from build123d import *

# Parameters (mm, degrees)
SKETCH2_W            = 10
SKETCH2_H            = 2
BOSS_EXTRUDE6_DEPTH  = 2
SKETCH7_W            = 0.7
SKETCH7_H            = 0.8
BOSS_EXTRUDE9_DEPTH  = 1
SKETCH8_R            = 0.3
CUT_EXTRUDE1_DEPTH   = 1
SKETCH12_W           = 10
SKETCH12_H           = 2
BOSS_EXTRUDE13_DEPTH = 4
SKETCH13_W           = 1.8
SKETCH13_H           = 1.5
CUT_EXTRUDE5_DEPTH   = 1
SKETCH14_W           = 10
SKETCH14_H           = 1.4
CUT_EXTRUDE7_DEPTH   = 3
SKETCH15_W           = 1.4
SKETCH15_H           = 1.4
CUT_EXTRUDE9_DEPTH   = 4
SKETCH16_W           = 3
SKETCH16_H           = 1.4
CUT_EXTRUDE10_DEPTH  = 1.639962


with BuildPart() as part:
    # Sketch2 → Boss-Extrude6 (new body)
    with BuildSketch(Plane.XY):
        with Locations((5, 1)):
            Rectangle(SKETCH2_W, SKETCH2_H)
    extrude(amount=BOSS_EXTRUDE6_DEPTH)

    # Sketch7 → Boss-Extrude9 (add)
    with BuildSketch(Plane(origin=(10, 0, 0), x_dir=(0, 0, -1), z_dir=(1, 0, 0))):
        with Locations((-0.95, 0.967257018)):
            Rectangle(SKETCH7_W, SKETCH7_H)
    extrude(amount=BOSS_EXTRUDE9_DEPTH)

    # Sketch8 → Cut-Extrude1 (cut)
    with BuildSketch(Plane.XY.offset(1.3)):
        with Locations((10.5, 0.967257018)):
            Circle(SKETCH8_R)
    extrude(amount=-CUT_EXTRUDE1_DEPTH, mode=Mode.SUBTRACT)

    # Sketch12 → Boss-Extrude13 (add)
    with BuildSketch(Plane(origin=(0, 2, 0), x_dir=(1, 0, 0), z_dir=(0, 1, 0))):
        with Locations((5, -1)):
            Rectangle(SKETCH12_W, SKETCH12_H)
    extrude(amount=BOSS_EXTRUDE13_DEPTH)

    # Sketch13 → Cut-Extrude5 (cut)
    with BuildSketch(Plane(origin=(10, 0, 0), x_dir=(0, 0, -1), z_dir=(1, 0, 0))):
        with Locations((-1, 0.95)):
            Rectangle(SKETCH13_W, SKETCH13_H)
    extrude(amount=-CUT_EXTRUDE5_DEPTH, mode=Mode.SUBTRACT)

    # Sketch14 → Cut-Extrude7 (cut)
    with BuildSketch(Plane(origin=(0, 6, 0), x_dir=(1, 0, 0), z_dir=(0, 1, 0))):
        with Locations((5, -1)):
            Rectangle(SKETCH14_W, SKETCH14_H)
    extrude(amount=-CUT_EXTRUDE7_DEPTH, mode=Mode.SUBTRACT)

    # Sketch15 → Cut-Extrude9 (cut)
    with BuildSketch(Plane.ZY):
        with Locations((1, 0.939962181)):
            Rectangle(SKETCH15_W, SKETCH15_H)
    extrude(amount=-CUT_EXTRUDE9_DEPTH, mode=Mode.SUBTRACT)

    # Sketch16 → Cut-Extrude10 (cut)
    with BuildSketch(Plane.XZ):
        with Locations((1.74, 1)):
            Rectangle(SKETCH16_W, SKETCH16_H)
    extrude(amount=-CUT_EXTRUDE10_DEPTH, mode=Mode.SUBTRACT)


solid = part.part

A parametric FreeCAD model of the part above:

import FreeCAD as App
import Part
import Sketcher

V = App.Vector


def add_polygon(sketch, points):
    """Adds a closed chain of lines whose ends are joined by coincident constraints."""
    first, n = sketch.GeometryCount, len(points)
    for a, b in zip(points, points[1:] + points[:1]):
        sketch.addGeometry(Part.LineSegment(App.Vector(*a, 0), App.Vector(*b, 0)), False)
    for i in range(n):
        sketch.addConstraint(Sketcher.Constraint("Coincident", first + i, 2, first + (i + 1) % n, 1))

doc = App.newDocument("Part")
params = doc.addObject("Spreadsheet::Sheet", "Params")
for row, (alias, value) in enumerate([
    ("sketch1_width", "10 mm"),
    ("sketch1_height", "2 mm"),
    ("pad1_length", "2 mm"),
    ("sketch2_width", "0.8 mm"),
    ("sketch2_height", "0.7 mm"),
    ("pad2_length", "1 mm"),
    ("sketch3_diameter", "0.6 mm"),
    ("pocket1_length", "1 mm"),
    ("sketch4_width", "10 mm"),
    ("sketch4_height", "2 mm"),
    ("pad3_length", "4 mm"),
    ("sketch5_width", "1.5 mm"),
    ("sketch5_height", "1.8 mm"),
    ("pocket2_length", "1 mm"),
    ("sketch6_width", "10 mm"),
    ("sketch6_height", "1.4 mm"),
    ("pocket3_length", "3 mm"),
    ("sketch7_width", "1.4 mm"),
    ("pocket4_length", "4 mm"),
    ("sketch8_width", "3 mm"),
    ("sketch8_height", "1.4 mm"),
    ("pocket5_length", "1.639962 mm"),
], start=1):
    params.set(f"A{row}", alias)
    params.set(f"B{row}", "=" + value)
    params.setAlias(f"B{row}", alias)

body = doc.addObject("PartDesign::Body", "Body")
body.AllowCompound = True

sketch1 = doc.addObject("Sketcher::SketchObject", "Sketch")
body.addObject(sketch1)
sketch1.AttachmentSupport = (doc.XY_Plane, [""])
sketch1.MapMode = "FlatFace"
add_polygon(sketch1, [(0, 2), (0, 0), (10, 0), (10, 2)])
sketch1.addConstraint([
    Sketcher.Constraint("Vertical", 0),
    Sketcher.Constraint("Horizontal", 1),
    Sketcher.Constraint("Vertical", 2),
    Sketcher.Constraint("Horizontal", 3),
    Sketcher.Constraint("Coincident", 0, 2, -1, 1),
    Sketcher.Constraint("DistanceX", 1, 1, 1, 2, 10.0),
    Sketcher.Constraint("DistanceY", 0, 2, 0, 1, 2.0),
])
sketch1.setExpression("Constraints[9]", "Params.sketch1_width")
sketch1.setExpression("Constraints[10]", "Params.sketch1_height")
pad1 = doc.addObject("PartDesign::Pad", "Pad")
body.addObject(pad1)
pad1.Profile = sketch1
pad1.setExpression("Length", "Params.pad1_length")

sketch2 = doc.addObject("Sketcher::SketchObject", "Sketch001")
body.addObject(sketch2)
sketch2.AttachmentSupport = (doc.YZ_Plane, [""])
sketch2.MapMode = "FlatFace"
sketch2.AttachmentOffset = App.Placement(V(0, 0, 10), App.Rotation())
add_polygon(sketch2, [(1.4, 1.3), (0.6, 1.3), (0.6, 0.6), (1.4, 0.6)])
sketch2.addConstraint([
    Sketcher.Constraint("Horizontal", 0),
    Sketcher.Constraint("Vertical", 1),
    Sketcher.Constraint("Horizontal", 2),
    Sketcher.Constraint("Vertical", 3),
    Sketcher.Constraint("DistanceX", 0, 2, 0, 1, 0.8),
    Sketcher.Constraint("DistanceY", 1, 2, 1, 1, 0.7),
    Sketcher.Constraint("DistanceY", -1, 1, 0, 2, 1.3),
    Sketcher.Constraint("DistanceX", -1, 1, 0, 2, 0.567257),
])
sketch2.setExpression("Constraints[8]", "Params.sketch2_width")
sketch2.setExpression("Constraints[9]", "Params.sketch2_height")
pad2 = doc.addObject("PartDesign::Pad", "Pad001")
body.addObject(pad2)
pad2.Profile = sketch2
pad2.setExpression("Length", "Params.pad2_length")

sketch3 = doc.addObject("Sketcher::SketchObject", "Sketch002")
body.addObject(sketch3)
sketch3.AttachmentSupport = (doc.XY_Plane, [""])
sketch3.MapMode = "FlatFace"
sketch3.AttachmentOffset = App.Placement(V(0, 0, 1.3), App.Rotation())
sketch3.addGeometry(Part.Circle(V(10.5, 0.97, 0), V(0, 0, 1), 0.3), False)
sketch3.addConstraint([
    Sketcher.Constraint("Diameter", 0, 0.6),
    Sketcher.Constraint("DistanceX", -1, 1, 0, 3, 10.5),
    Sketcher.Constraint("DistanceY", -1, 1, 0, 3, 0.967257),
])
sketch3.setExpression("Constraints[0]", "Params.sketch3_diameter")
pocket1 = doc.addObject("PartDesign::Pocket", "Pocket")
body.addObject(pocket1)
pocket1.Profile = sketch3
pocket1.setExpression("Length", "Params.pocket1_length")

sketch4 = doc.addObject("Sketcher::SketchObject", "Sketch003")
body.addObject(sketch4)
sketch4.AttachmentSupport = (doc.XZ_Plane, [""])
sketch4.MapMode = "FlatFace"
sketch4.AttachmentOffset = App.Placement(V(0, 0, -2), App.Rotation())
add_polygon(sketch4, [(0, 0), (0, 2), (10, 2), (10, 0)])
sketch4.addConstraint([
    Sketcher.Constraint("Vertical", 0),
    Sketcher.Constraint("Horizontal", 1),
    Sketcher.Constraint("Vertical", 2),
    Sketcher.Constraint("Horizontal", 3),
    Sketcher.Constraint("Coincident", 3, 2, -1, 1),
    Sketcher.Constraint("DistanceX", 1, 1, 1, 2, 10.0),
    Sketcher.Constraint("DistanceY", 0, 1, 0, 2, 2.0),
])
sketch4.setExpression("Constraints[9]", "Params.sketch4_width")
sketch4.setExpression("Constraints[10]", "Params.sketch4_height")
pad3 = doc.addObject("PartDesign::Pad", "Pad002")
body.addObject(pad3)
pad3.Profile = sketch4
pad3.setExpression("Length", "Params.pad3_length")
pad3.Reversed = True

sketch5 = doc.addObject("Sketcher::SketchObject", "Sketch004")
body.addObject(sketch5)
sketch5.AttachmentSupport = (doc.YZ_Plane, [""])
sketch5.MapMode = "FlatFace"
sketch5.AttachmentOffset = App.Placement(V(0, 0, 10), App.Rotation())
add_polygon(sketch5, [(1.7, 1.9), (0.2, 1.9), (0.2, 0.1), (1.7, 0.1)])
sketch5.addConstraint([
    Sketcher.Constraint("Horizontal", 0),
    Sketcher.Constraint("Vertical", 1),
    Sketcher.Constraint("Horizontal", 2),
    Sketcher.Constraint("Vertical", 3),
    Sketcher.Constraint("DistanceX", 0, 2, 0, 1, 1.5),
    Sketcher.Constraint("DistanceY", 1, 2, 1, 1, 1.8),
    Sketcher.Constraint("DistanceX", -1, 1, 0, 2, 0.2),
    Sketcher.Constraint("DistanceY", -1, 1, 0, 2, 1.9),
])
sketch5.setExpression("Constraints[8]", "Params.sketch5_width")
sketch5.setExpression("Constraints[9]", "Params.sketch5_height")
pocket2 = doc.addObject("PartDesign::Pocket", "Pocket001")
body.addObject(pocket2)
pocket2.Profile = sketch5
pocket2.setExpression("Length", "Params.pocket2_length")

sketch6 = doc.addObject("Sketcher::SketchObject", "Sketch005")
body.addObject(sketch6)
sketch6.AttachmentSupport = (doc.XZ_Plane, [""])
sketch6.MapMode = "FlatFace"
sketch6.AttachmentOffset = App.Placement(V(0, 0, -6), App.Rotation())
add_polygon(sketch6, [(0, 0.3), (0, 1.7), (10, 1.7), (10, 0.3)])
sketch6.addConstraint([
    Sketcher.Constraint("Vertical", 0),
    Sketcher.Constraint("Horizontal", 1),
    Sketcher.Constraint("Vertical", 2),
    Sketcher.Constraint("Horizontal", 3),
    Sketcher.Constraint("PointOnObject", 0, 2, -2),
    Sketcher.Constraint("DistanceX", 1, 1, 1, 2, 10.0),
    Sketcher.Constraint("DistanceY", 0, 1, 0, 2, 1.4),
    Sketcher.Constraint("DistanceY", -1, 1, 0, 2, 1.7),
])
sketch6.setExpression("Constraints[9]", "Params.sketch6_width")
sketch6.setExpression("Constraints[10]", "Params.sketch6_height")
pocket3 = doc.addObject("PartDesign::Pocket", "Pocket002")
body.addObject(pocket3)
pocket3.Profile = sketch6
pocket3.setExpression("Length", "Params.pocket3_length")
pocket3.Reversed = True

sketch7 = doc.addObject("Sketcher::SketchObject", "Sketch006")
body.addObject(sketch7)
sketch7.AttachmentSupport = (doc.YZ_Plane, [""])
sketch7.MapMode = "FlatFace"
add_polygon(sketch7, [(1.6, 0.3), (0.2, 0.3), (0.2, 1.7), (1.6, 1.7)])
sketch7.addConstraint([
    Sketcher.Constraint("Horizontal", 0),
    Sketcher.Constraint("Vertical", 1),
    Sketcher.Constraint("Horizontal", 2),
    Sketcher.Constraint("Vertical", 3),
    Sketcher.Constraint("Equal", 2, 1),
    Sketcher.Constraint("DistanceX", 0, 2, 0, 1, 1.4),
    Sketcher.Constraint("DistanceY", -1, 1, 0, 2, 0.3),
    Sketcher.Constraint("DistanceX", -1, 1, 0, 2, 0.239962),
])
sketch7.setExpression("Constraints[9]", "Params.sketch7_width")
pocket4 = doc.addObject("PartDesign::Pocket", "Pocket003")
body.addObject(pocket4)
pocket4.Profile = sketch7
pocket4.setExpression("Length", "Params.pocket4_length")
pocket4.Reversed = True

sketch8 = doc.addObject("Sketcher::SketchObject", "Sketch007")
body.addObject(sketch8)
sketch8.AttachmentSupport = (doc.XZ_Plane, [""])
sketch8.MapMode = "FlatFace"
add_polygon(sketch8, [(0.2, 1.7), (0.2, 0.3), (3.2, 0.3), (3.2, 1.7)])
sketch8.addConstraint([
    Sketcher.Constraint("Vertical", 0),
    Sketcher.Constraint("Horizontal", 1),
    Sketcher.Constraint("Vertical", 2),
    Sketcher.Constraint("Horizontal", 3),
    Sketcher.Constraint("DistanceX", 1, 1, 1, 2, 3.0),
    Sketcher.Constraint("DistanceY", 0, 2, 0, 1, 1.4),
    Sketcher.Constraint("DistanceY", -1, 1, 0, 2, 0.3),
    Sketcher.Constraint("DistanceX", -1, 1, 0, 2, 0.24),
])
sketch8.setExpression("Constraints[8]", "Params.sketch8_width")
sketch8.setExpression("Constraints[9]", "Params.sketch8_height")
pocket5 = doc.addObject("PartDesign::Pocket", "Pocket004")
body.addObject(pocket5)
pocket5.Profile = sketch8
pocket5.setExpression("Length", "Params.pocket5_length")

doc.recompute()
